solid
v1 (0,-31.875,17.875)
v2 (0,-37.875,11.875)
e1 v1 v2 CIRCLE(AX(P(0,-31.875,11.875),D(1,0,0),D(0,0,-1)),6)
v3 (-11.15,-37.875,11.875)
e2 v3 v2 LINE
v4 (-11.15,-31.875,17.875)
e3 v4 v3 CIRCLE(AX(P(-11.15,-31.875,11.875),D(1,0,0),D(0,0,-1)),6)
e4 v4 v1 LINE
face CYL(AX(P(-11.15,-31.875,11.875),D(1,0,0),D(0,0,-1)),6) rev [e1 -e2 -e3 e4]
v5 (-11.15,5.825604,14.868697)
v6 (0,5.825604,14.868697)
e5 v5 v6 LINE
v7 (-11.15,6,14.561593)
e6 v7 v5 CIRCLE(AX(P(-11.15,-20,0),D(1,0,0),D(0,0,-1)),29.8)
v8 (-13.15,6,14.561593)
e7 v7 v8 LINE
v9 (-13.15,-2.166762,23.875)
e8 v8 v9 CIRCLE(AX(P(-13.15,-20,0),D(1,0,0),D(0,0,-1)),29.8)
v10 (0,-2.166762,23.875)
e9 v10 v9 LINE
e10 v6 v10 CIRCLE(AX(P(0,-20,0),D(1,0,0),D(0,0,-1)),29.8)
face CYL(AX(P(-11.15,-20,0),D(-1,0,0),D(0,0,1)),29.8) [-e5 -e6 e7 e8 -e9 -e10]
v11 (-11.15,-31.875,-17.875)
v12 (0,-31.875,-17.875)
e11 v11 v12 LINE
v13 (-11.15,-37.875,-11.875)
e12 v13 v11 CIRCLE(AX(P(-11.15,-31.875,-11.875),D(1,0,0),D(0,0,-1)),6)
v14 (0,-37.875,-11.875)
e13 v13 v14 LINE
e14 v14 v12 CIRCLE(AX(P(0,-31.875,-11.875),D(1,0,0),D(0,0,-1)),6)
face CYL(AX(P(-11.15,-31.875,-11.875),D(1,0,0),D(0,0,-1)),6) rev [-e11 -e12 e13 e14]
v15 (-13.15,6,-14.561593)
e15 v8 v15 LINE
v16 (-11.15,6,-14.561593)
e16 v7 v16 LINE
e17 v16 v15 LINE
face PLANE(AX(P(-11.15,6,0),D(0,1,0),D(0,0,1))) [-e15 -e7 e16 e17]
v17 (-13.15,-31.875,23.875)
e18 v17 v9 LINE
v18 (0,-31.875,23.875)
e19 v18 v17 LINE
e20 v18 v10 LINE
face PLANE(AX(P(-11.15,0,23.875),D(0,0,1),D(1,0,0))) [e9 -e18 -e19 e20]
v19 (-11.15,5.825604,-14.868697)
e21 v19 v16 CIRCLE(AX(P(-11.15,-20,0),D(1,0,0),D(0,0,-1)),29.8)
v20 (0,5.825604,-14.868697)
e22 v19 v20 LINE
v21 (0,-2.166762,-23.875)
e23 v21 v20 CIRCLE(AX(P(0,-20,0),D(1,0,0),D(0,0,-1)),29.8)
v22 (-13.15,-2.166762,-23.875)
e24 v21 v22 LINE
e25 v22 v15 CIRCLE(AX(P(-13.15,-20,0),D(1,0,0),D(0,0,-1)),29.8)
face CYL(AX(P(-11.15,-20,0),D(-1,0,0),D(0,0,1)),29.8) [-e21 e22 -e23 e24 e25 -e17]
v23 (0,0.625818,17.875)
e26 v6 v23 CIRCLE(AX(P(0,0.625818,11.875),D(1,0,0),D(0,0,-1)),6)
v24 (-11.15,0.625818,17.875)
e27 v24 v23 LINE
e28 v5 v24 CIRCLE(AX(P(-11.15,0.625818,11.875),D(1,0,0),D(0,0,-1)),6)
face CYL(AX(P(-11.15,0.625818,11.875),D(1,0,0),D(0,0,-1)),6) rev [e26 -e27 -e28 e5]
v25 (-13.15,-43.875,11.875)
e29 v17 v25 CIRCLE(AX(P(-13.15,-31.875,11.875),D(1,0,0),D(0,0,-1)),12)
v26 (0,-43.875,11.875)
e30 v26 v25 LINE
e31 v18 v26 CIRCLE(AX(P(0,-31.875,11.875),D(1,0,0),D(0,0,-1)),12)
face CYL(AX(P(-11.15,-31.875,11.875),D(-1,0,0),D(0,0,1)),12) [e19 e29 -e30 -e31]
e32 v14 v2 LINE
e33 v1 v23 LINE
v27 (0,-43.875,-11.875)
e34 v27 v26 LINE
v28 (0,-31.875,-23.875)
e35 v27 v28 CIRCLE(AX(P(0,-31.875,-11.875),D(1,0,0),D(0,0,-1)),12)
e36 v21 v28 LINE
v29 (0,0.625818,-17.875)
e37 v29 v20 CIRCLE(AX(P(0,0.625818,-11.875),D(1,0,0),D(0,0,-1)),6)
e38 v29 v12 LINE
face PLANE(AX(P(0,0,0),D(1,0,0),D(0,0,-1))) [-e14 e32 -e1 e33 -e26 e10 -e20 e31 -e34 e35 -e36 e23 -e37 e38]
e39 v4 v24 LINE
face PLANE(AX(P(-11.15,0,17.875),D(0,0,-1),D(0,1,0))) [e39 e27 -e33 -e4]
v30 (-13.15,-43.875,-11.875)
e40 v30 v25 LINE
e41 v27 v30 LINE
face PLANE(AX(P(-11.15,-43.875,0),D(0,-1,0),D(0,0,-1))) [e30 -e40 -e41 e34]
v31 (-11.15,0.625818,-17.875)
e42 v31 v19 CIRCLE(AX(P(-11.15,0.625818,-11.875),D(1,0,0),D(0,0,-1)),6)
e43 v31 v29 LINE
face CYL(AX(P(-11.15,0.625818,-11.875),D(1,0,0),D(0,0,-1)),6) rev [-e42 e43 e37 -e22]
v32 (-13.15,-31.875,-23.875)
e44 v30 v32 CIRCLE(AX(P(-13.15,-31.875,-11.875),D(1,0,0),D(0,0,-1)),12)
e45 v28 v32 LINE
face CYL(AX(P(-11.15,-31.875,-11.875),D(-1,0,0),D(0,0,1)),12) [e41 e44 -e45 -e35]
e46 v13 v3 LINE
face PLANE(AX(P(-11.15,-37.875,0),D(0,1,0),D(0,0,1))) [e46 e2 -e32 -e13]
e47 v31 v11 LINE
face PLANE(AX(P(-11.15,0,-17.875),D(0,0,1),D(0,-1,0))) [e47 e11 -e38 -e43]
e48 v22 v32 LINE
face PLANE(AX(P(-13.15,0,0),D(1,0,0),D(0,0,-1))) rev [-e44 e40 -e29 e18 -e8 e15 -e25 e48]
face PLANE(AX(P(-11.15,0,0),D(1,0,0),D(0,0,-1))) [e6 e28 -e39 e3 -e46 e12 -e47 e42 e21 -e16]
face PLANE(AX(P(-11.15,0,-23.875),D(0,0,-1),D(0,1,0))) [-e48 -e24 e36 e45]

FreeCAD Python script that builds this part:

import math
import FreeCAD as App
import Part
import Sketcher
Q = App.Units.Quantity

doc = App.newDocument("Part")
body = doc.addObject("PartDesign::Body", "Body")

# Sketch on YZ plane
sketch1 = body.newObject("Sketcher::SketchObject", "Sketch")
sketch1.AttachmentSupport = (doc.getObject("YZ_Plane"), [""])
sketch1.MapMode = "FlatFace"
sketch1.AttachmentOffset = App.Placement(App.Vector(0, 0, -13.15), App.Rotation())
sketch1.addGeometry(Part.LineSegment(App.Vector(6, -15, 0), App.Vector(6, 15, 0)), False)
sketch1.addGeometry(Part.ArcOfCircle(Part.Circle(App.Vector(-20, 0, 0), App.Vector(0, 0, 1), 30), math.radians(29), math.radians(53)), False)
sketch1.addGeometry(Part.LineSegment(App.Vector(-2, 24, 0), App.Vector(-32, 24, 0)), False)
sketch1.addGeometry(Part.ArcOfCircle(Part.Circle(App.Vector(-32, 12, 0), App.Vector(0, 0, 1), 12), math.radians(90), math.radians(180)), False)
sketch1.addGeometry(Part.LineSegment(App.Vector(-44, 12, 0), App.Vector(-44, -12, 0)), False)
sketch1.addGeometry(Part.ArcOfCircle(Part.Circle(App.Vector(-32, -12, 0), App.Vector(0, 0, 1), 12), math.radians(-180), math.radians(-90)), False)
sketch1.addGeometry(Part.LineSegment(App.Vector(-32, -24, 0), App.Vector(-2, -24, 0)), False)
sketch1.addGeometry(Part.ArcOfCircle(Part.Circle(App.Vector(-20, 0, 0), App.Vector(0, 0, 1), 30), math.radians(-53), math.radians(-29)), False)
sketch1.addConstraint(Sketcher.Constraint("Coincident", 0, 2, 1, 1))
sketch1.addConstraint(Sketcher.Constraint("Coincident", 1, 2, 2, 1))
sketch1.addConstraint(Sketcher.Constraint("Tangent", 2, 2, 3, 1))
sketch1.addConstraint(Sketcher.Constraint("Tangent", 3, 2, 4, 1))
sketch1.addConstraint(Sketcher.Constraint("Tangent", 4, 2, 5, 1))
sketch1.addConstraint(Sketcher.Constraint("Tangent", 5, 2, 6, 1))
sketch1.addConstraint(Sketcher.Constraint("Coincident", 6, 2, 7, 1))
sketch1.addConstraint(Sketcher.Constraint("Coincident", 7, 2, 0, 1))
sketch1.addConstraint(Sketcher.Constraint("Vertical", 0))
sketch1.addConstraint(Sketcher.Constraint("Horizontal", 2))
sketch1.addConstraint(Sketcher.Constraint("Vertical", 4))
sketch1.addConstraint(Sketcher.Constraint("Horizontal", 6))
sketch1.addConstraint(Sketcher.Constraint("Coincident", 7, 3, 1, 3))
sketch1.addConstraint(Sketcher.Constraint("Equal", 3, 5))
sketch1.addConstraint(Sketcher.Constraint("Equal", 1, 7))
sketch1.addConstraint(Sketcher.Constraint("Symmetric", 1, 2, 6, 2, -1))
sketch1.addConstraint(Sketcher.Constraint("Radius", 3, Q("12 mm")))
sketch1.addConstraint(Sketcher.Constraint("Radius", 1, Q("29.8 mm")))
sketch1.addConstraint(Sketcher.Constraint("DistanceX", 1, 3, -1, 1, Q("20 mm")))
sketch1.addConstraint(Sketcher.Constraint("DistanceX", -1, 1, 0, 2, Q("6 mm")))
sketch1.addConstraint(Sketcher.Constraint("DistanceY", 4, 2, 4, 1, Q("23.75 mm")))
sketch1.addConstraint(Sketcher.Constraint("DistanceX", 3, 3, -1, 1, Q("31.875 mm")))
pad1 = body.newObject("PartDesign::Pad", "Pad")
pad1.Profile = sketch1
pad1.Length = 2

# Sketch on YZ plane
sketch2 = body.newObject("Sketcher::SketchObject", "Sketch001")
sketch2.AttachmentSupport = (doc.getObject("YZ_Plane"), [""])
sketch2.MapMode = "FlatFace"
sketch2.AttachmentOffset = App.Placement(App.Vector(0, 0, -11.15), App.Rotation())
sketch2.addGeometry(Part.ArcOfCircle(Part.Circle(App.Vector(-20, 0, 0), App.Vector(0, 0, 1), 29.8), math.radians(-34.78), math.radians(-29.93)), False)
sketch2.addGeometry(Part.ArcOfCircle(Part.Circle(App.Vector(0.6, -11.9, 0), App.Vector(0, 0, 1), 6), math.radians(-90), math.radians(-30)), False)
sketch2.addGeometry(Part.LineSegment(App.Vector(0.6, -17.9, 0), App.Vector(-31.9, -17.9, 0)), False)
sketch2.addGeometry(Part.ArcOfCircle(Part.Circle(App.Vector(-31.9, -11.9, 0), App.Vector(0, 0, 1), 6), math.radians(180), math.radians(270)), False)
sketch2.addGeometry(Part.LineSegment(App.Vector(-37.9, -11.9, 0), App.Vector(-37.9, 11.9, 0)), False)
sketch2.addGeometry(Part.ArcOfCircle(Part.Circle(App.Vector(-31.9, 11.9, 0), App.Vector(0, 0, 1), 6), math.radians(90), math.radians(180)), False)
sketch2.addGeometry(Part.LineSegment(App.Vector(-31.9, 17.9, 0), App.Vector(0.6, 17.9, 0)), False)
sketch2.addGeometry(Part.ArcOfCircle(Part.Circle(App.Vector(0.6, 11.9, 0), App.Vector(0, 0, 1), 6), math.radians(30), math.radians(90)), False)
sketch2.addGeometry(Part.ArcOfCircle(Part.Circle(App.Vector(-20, 0, 0), App.Vector(0, 0, 1), 29.8), math.radians(29.93), math.radians(34.78)), False)
sketch2.addGeometry(Part.ArcOfCircle(Part.Circle(App.Vector(-20, 0, 0), App.Vector(0, 0, 1), 29.8), math.radians(34.78), math.radians(53.24)), False)
sketch2.addGeometry(Part.LineSegment(App.Vector(-2.2, 23.9, 0), App.Vector(-31.9, 23.9, 0)), False)
sketch2.addGeometry(Part.ArcOfCircle(Part.Circle(App.Vector(-31.9, 11.9, 0), App.Vector(0, 0, 1), 12), math.radians(90), math.radians(180)), False)
sketch2.addGeometry(Part.LineSegment(App.Vector(-43.9, 11.9, 0), App.Vector(-43.9, -11.9, 0)), False)
sketch2.addGeometry(Part.ArcOfCircle(Part.Circle(App.Vector(-31.9, -11.9, 0), App.Vector(0, 0, 1), 12), math.radians(-180), math.radians(-90)), False)
sketch2.addGeometry(Part.LineSegment(App.Vector(-31.9, -23.9, 0), App.Vector(-2.2, -23.9, 0)), False)
sketch2.addGeometry(Part.ArcOfCircle(Part.Circle(App.Vector(-20, 0, 0), App.Vector(0, 0, 1), 29.8), math.radians(-53.24), math.radians(-34.78)), False)
sketch2.addConstraint(Sketcher.Constraint("Tangent", 0, 2, 1, 2))
sketch2.addConstraint(Sketcher.Constraint("Tangent", 1, 1, 2, 1))
sketch2.addConstraint(Sketcher.Constraint("Tangent", 2, 2, 3, 2))
sketch2.addConstraint(Sketcher.Constraint("Tangent", 3, 1, 4, 1))
sketch2.addConstraint(Sketcher.Constraint("Tangent", 4, 2, 5, 2))
sketch2.addConstraint(Sketcher.Constraint("Tangent", 5, 1, 6, 1))
sketch2.addConstraint(Sketcher.Constraint("Tangent", 6, 2, 7, 2))
sketch2.addConstraint(Sketcher.Constraint("Tangent", 7, 1, 8, 1))
sketch2.addConstraint(Sketcher.Constraint("Tangent", 8, 2, 9, 1))
sketch2.addConstraint(Sketcher.Constraint("Coincident", 9, 2, 10, 1))
sketch2.addConstraint(Sketcher.Constraint("Tangent", 10, 2, 11, 1))
sketch2.addConstraint(Sketcher.Constraint("Tangent", 11, 2, 12, 1))
sketch2.addConstraint(Sketcher.Constraint("Tangent", 12, 2, 13, 1))
sketch2.addConstraint(Sketcher.Constraint("Tangent", 13, 2, 14, 1))
sketch2.addConstraint(Sketcher.Constraint("Coincident", 14, 2, 15, 1))
sketch2.addConstraint(Sketcher.Constraint("Tangent", 15, 2, 0, 1))
sketch2.addConstraint(Sketcher.Constraint("Horizontal", 2))
sketch2.addConstraint(Sketcher.Constraint("Vertical", 4))
sketch2.addConstraint(Sketcher.Constraint("Horizontal", 6))
sketch2.addConstraint(Sketcher.Constraint("Horizontal", 10))
sketch2.addConstraint(Sketcher.Constraint("Vertical", 12))
sketch2.addConstraint(Sketcher.Constraint("Horizontal", 14))
sketch2.addConstraint(Sketcher.Constraint("Coincident", 8, 3, 0, 3))
sketch2.addConstraint(Sketcher.Constraint("Coincident", 11, 3, 5, 3))
sketch2.addConstraint(Sketcher.Constraint("Coincident", 13, 3, 3, 3))
sketch2.addConstraint(Sketcher.Constraint("Equal", 1, 3))
sketch2.addConstraint(Sketcher.Constraint("Equal", 3, 5))
sketch2.addConstraint(Sketcher.Constraint("Equal", 5, 7))
sketch2.addConstraint(Sketcher.Constraint("Equal", 0, 8))
sketch2.addConstraint(Sketcher.Constraint("Equal", 8, 9))
sketch2.addConstraint(Sketcher.Constraint("Equal", 9, 15))
sketch2.addConstraint(Sketcher.Constraint("Symmetric", 1, 3, 7, 3, -1))
sketch2.addConstraint(Sketcher.Constraint("Vertical", 8, 2, 15, 2))
sketch2.addConstraint(Sketcher.Constraint("Radius", 1, Q("6 mm")))
sketch2.addConstraint(Sketcher.Constraint("Radius", 11, Q("12 mm")))
sketch2.addConstraint(Sketcher.Constraint("Radius", 0, Q("29.8 mm")))
sketch2.addConstraint(Sketcher.Constraint("DistanceX", 0, 3, -1, 1, Q("20 mm")))
sketch2.addConstraint(Sketcher.Constraint("DistanceY", -1, 1, 8, 2, Q("17 mm")))
sketch2.addConstraint(Sketcher.Constraint("DistanceY", 4, 1, 4, 2, Q("23.75 mm")))
sketch2.addConstraint(Sketcher.Constraint("DistanceX", 3, 3, -1, 1, Q("31.875 mm")))
pad2 = body.newObject("PartDesign::Pad", "Pad001")
pad2.Profile = sketch2
pad2.Length = 11.15

doc.recompute()
